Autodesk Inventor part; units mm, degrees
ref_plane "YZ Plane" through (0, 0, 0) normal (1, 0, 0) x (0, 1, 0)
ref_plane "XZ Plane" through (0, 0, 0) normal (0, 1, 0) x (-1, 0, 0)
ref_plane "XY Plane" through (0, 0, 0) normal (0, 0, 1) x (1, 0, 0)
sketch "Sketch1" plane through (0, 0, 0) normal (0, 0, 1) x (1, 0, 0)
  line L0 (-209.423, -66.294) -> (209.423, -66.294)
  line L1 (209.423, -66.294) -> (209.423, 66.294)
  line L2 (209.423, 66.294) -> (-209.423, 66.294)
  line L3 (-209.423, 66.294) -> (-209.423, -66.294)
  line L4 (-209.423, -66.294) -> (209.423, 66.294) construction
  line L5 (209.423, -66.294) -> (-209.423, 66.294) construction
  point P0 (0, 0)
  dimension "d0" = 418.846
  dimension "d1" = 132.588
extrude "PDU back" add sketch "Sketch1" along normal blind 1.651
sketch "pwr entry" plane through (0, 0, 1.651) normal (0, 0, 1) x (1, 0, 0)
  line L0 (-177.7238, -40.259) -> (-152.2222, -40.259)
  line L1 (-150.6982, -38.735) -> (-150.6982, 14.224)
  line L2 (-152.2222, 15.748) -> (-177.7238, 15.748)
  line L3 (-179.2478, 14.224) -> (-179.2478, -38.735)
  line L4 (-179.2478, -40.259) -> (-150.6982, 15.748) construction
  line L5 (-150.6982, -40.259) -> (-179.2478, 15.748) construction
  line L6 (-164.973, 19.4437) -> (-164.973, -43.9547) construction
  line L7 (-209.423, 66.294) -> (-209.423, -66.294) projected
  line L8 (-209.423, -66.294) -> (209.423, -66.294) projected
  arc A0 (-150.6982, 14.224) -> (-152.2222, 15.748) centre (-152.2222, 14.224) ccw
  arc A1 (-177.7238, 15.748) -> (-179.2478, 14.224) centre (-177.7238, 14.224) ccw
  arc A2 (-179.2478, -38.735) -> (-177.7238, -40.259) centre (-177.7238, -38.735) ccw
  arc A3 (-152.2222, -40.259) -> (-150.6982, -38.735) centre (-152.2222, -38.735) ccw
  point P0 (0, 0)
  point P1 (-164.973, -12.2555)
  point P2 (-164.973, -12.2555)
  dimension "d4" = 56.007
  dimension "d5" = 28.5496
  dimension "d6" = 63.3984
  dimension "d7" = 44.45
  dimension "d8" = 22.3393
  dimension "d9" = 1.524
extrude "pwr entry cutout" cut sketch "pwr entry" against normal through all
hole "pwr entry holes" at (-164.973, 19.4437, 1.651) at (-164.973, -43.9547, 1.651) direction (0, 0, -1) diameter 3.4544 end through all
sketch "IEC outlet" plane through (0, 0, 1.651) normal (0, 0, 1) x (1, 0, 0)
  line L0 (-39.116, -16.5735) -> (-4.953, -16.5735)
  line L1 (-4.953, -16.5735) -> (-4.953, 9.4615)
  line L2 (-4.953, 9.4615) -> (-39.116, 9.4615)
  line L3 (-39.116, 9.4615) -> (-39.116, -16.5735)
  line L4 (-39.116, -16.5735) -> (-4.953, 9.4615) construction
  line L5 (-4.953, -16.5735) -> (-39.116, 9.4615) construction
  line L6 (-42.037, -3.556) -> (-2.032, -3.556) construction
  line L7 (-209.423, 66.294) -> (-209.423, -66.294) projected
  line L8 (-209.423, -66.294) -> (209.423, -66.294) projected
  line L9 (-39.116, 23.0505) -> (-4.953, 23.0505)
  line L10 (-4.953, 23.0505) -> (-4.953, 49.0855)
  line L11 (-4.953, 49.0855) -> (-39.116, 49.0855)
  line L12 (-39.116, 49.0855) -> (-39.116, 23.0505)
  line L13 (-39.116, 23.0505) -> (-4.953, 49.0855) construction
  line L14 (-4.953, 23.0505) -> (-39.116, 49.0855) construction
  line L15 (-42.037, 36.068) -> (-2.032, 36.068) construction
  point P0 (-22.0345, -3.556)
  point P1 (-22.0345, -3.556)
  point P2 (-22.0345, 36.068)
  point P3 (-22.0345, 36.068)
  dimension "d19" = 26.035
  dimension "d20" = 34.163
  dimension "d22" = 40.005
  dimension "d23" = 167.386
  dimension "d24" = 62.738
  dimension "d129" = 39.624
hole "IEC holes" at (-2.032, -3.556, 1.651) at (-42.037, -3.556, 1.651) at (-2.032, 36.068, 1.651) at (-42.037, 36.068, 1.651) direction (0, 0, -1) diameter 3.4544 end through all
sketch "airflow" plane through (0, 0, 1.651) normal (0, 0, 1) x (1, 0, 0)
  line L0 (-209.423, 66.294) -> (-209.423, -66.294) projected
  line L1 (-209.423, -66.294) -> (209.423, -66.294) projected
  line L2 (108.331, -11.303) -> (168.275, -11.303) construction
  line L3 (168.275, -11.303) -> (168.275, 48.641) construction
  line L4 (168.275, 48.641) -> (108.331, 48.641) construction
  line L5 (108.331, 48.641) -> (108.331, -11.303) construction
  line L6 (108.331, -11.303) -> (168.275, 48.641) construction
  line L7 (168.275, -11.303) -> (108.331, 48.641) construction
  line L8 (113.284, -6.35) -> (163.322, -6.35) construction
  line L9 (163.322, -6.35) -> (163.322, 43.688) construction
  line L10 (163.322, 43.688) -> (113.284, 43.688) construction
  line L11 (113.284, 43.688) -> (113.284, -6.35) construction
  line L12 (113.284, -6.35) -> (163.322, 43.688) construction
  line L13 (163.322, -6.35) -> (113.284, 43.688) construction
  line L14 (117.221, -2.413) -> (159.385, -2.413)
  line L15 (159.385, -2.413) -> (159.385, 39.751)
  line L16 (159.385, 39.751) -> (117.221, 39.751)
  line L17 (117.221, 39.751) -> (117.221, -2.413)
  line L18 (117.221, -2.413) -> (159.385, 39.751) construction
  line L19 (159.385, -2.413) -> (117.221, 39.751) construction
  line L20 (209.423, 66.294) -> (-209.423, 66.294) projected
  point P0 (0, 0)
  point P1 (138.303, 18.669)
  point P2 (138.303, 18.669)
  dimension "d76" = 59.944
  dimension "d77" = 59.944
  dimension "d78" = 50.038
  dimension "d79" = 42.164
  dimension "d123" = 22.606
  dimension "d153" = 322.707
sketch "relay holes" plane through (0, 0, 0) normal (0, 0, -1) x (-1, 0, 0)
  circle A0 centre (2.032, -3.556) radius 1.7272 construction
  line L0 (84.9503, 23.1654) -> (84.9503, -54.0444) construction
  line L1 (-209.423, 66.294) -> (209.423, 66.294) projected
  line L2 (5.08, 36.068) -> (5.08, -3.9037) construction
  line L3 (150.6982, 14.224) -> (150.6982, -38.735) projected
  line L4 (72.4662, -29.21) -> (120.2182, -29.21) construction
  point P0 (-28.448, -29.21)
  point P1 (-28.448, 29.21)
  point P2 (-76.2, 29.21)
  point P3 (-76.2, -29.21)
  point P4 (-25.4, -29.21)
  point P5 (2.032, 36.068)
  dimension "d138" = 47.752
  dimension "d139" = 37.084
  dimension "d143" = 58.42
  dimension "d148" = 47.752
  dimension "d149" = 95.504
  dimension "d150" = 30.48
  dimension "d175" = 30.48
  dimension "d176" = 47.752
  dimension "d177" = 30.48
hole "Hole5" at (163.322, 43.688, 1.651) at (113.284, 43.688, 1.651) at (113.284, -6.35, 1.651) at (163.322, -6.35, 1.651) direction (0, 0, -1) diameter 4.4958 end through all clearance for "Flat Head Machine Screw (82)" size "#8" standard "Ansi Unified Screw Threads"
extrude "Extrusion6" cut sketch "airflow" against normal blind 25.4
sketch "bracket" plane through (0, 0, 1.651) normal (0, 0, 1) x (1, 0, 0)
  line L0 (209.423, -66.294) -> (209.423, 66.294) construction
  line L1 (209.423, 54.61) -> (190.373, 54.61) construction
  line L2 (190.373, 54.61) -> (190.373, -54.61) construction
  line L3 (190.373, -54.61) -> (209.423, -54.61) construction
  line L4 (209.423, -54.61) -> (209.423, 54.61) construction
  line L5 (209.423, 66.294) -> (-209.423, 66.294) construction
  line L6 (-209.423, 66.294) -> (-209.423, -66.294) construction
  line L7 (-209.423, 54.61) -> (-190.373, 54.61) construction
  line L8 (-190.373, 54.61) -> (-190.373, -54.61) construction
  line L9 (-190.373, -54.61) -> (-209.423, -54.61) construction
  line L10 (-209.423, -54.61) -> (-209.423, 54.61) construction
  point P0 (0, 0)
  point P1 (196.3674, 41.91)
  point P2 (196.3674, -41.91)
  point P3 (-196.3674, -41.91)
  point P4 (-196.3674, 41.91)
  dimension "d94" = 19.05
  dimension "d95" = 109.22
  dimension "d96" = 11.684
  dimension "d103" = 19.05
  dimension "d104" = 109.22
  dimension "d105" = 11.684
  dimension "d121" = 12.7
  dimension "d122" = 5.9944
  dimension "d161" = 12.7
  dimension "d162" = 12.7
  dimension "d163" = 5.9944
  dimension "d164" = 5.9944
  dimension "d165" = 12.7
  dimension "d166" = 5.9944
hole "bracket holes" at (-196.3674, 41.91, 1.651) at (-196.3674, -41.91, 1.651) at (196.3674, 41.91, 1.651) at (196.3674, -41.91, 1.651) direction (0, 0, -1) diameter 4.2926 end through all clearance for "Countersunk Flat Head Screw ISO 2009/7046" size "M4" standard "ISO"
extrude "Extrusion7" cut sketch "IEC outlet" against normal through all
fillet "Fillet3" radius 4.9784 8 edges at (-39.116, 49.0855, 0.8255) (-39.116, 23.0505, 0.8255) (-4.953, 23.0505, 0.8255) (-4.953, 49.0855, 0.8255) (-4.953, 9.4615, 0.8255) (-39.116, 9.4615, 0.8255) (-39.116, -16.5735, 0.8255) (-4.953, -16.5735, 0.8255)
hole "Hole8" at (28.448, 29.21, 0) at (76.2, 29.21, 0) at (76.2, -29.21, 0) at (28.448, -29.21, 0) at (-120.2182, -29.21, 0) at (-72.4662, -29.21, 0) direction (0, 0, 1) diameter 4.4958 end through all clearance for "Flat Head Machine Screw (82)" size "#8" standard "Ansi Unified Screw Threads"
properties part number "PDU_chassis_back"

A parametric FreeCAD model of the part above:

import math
import FreeCAD as App
import Part
import Sketcher
from FreeCAD import Vector
Q = App.Units.Quantity


def edges_at(feature, points):
    """Names of the edges that pass closest to the given points."""
    edges = feature.Shape.Edges
    near = lambda p: min(range(len(edges)), key=lambda i: edges[i].distToShape(Part.Vertex(*p))[0])
    return sorted({f"Edge{near(p) + 1}" for p in points})

doc = App.newDocument("Part")
body = doc.addObject("PartDesign::Body", "Body")

sketch1 = doc.addObject("Sketcher::SketchObject", "Sketch")
body.addObject(sketch1)
sketch1.AttachmentSupport = (doc.XY_Plane, [""])
sketch1.MapMode = "FlatFace"
sketch1.addGeometry(Part.LineSegment(Vector(-209, 66, 0), Vector(-209, -66, 0)), False)
sketch1.addGeometry(Part.LineSegment(Vector(-209, -66, 0), Vector(209, -66, 0)), False)
sketch1.addGeometry(Part.LineSegment(Vector(209, -66, 0), Vector(209, 66, 0)), False)
sketch1.addGeometry(Part.LineSegment(Vector(209, 66, 0), Vector(-209, 66, 0)), False)
sketch1.addConstraint(Sketcher.Constraint("Coincident", 0, 2, 1, 1))
sketch1.addConstraint(Sketcher.Constraint("Coincident", 1, 2, 2, 1))
sketch1.addConstraint(Sketcher.Constraint("Coincident", 2, 2, 3, 1))
sketch1.addConstraint(Sketcher.Constraint("Coincident", 3, 2, 0, 1))
sketch1.addConstraint(Sketcher.Constraint("Vertical", 0))
sketch1.addConstraint(Sketcher.Constraint("Horizontal", 1))
sketch1.addConstraint(Sketcher.Constraint("Vertical", 2))
sketch1.addConstraint(Sketcher.Constraint("Horizontal", 3))
sketch1.addConstraint(Sketcher.Constraint("Symmetric", 0, 2, 2, 2, -1, 1))
sketch1.addConstraint(Sketcher.Constraint("DistanceX", 1, 1, 1, 2, Q("16.49 in")))
sketch1.addConstraint(Sketcher.Constraint("DistanceY", 0, 2, 0, 1, Q("5.22 in")))
pad1 = doc.addObject("PartDesign::Pad", "Pad")
body.addObject(pad1)
pad1.Profile = sketch1
pad1.Length = Q("0.065 in")

sketch2 = doc.addObject("Sketcher::SketchObject", "Sketch001")
body.addObject(sketch2)
sketch2.AttachmentSupport = (doc.XY_Plane, [""])
sketch2.MapMode = "FlatFace"
sketch2.AttachmentOffset = App.Placement(Vector(0, 0, 0.065 * 25.4), App.Rotation())
sketch2.addGeometry(Part.ArcOfCircle(Part.Circle(Vector(-177.7, -38.7, 0), Vector(0, 0, 1), 1.5), math.radians(180), math.radians(270)), False)
sketch2.addGeometry(Part.LineSegment(Vector(-177.7, -40.3, 0), Vector(-152.2, -40.3, 0)), False)
sketch2.addGeometry(Part.ArcOfCircle(Part.Circle(Vector(-152.2, -38.7, 0), Vector(0, 0, 1), 1.5), math.radians(-90), math.radians(0)), False)
sketch2.addGeometry(Part.LineSegment(Vector(-150.7, -38.7, 0), Vector(-150.7, 14.2, 0)), False)
sketch2.addGeometry(Part.ArcOfCircle(Part.Circle(Vector(-152.2, 14.2, 0), Vector(0, 0, 1), 1.5), math.radians(0), math.radians(90)), False)
sketch2.addGeometry(Part.LineSegment(Vector(-152.2, 15.7, 0), Vector(-177.7, 15.7, 0)), False)
sketch2.addGeometry(Part.ArcOfCircle(Part.Circle(Vector(-177.7, 14.2, 0), Vector(0, 0, 1), 1.5), math.radians(90), math.radians(180)), False)
sketch2.addGeometry(Part.LineSegment(Vector(-179.2, 14.2, 0), Vector(-179.2, -38.7, 0)), False)
sketch2.addConstraint(Sketcher.Constraint("Tangent", 0, 2, 1, 1))
sketch2.addConstraint(Sketcher.Constraint("Tangent", 1, 2, 2, 1))
sketch2.addConstraint(Sketcher.Constraint("Tangent", 2, 2, 3, 1))
sketch2.addConstraint(Sketcher.Constraint("Tangent", 3, 2, 4, 1))
sketch2.addConstraint(Sketcher.Constraint("Tangent", 4, 2, 5, 1))
sketch2.addConstraint(Sketcher.Constraint("Tangent", 5, 2, 6, 1))
sketch2.addConstraint(Sketcher.Constraint("Tangent", 6, 2, 7, 1))
sketch2.addConstraint(Sketcher.Constraint("Tangent", 7, 2, 0, 1))
sketch2.addConstraint(Sketcher.Constraint("Horizontal", 1))
sketch2.addConstraint(Sketcher.Constraint("Vertical", 3))
sketch2.addConstraint(Sketcher.Constraint("Horizontal", 5))
sketch2.addConstraint(Sketcher.Constraint("Vertical", 7))
sketch2.addConstraint(Sketcher.Constraint("Equal", 0, 2))
sketch2.addConstraint(Sketcher.Constraint("Equal", 2, 4))
sketch2.addConstraint(Sketcher.Constraint("Equal", 4, 6))
sketch2.addConstraint(Sketcher.Constraint("Radius", 0, Q("0.06 in")))
sketch2.addConstraint(Sketcher.Constraint("DistanceX", 6, 2, 3, 2, Q("1.124 in")))
sketch2.addConstraint(Sketcher.Constraint("DistanceY", 3, 1, 3, 2, Q("2.085 in")))
sketch2.addConstraint(Sketcher.Constraint("DistanceY", -1, 1, 4, 3, Q("0.56 in")))
sketch2.addConstraint(Sketcher.Constraint("DistanceX", 0, 3, -1, 1, Q("6.997 in")))
pocket1 = doc.addObject("PartDesign::Pocket", "Pocket")
body.addObject(pocket1)
pocket1.Profile = sketch2
pocket1.Type = "ThroughAll"

sketch3 = doc.addObject("Sketcher::SketchObject", "Sketch002")
body.addObject(sketch3)
sketch3.AttachmentSupport = (doc.XY_Plane, [""])
sketch3.MapMode = "FlatFace"
sketch3.AttachmentOffset = App.Placement(Vector(0, 0, 0.065 * 25.4), App.Rotation())
sketch3.addGeometry(Part.Circle(Vector(-165, 19.4, 0), Vector(0, 0, 1), 1.7), False)
sketch3.addGeometry(Part.Circle(Vector(-165, -44, 0), Vector(0, 0, 1), 1.7), False)
sketch3.addConstraint(Sketcher.Constraint("Equal", 0, 1))
sketch3.addConstraint(Sketcher.Constraint("Vertical", 0, 3, 1, 3))
sketch3.addConstraint(Sketcher.Constraint("Diameter", 0, Q("0.136 in")))
sketch3.addConstraint(Sketcher.Constraint("DistanceX", 0, 3, -1, 1, Q("6.495 in")))
sketch3.addConstraint(Sketcher.Constraint("DistanceY", 1, 3, 0, 3, Q("2.496 in")))
sketch3.addConstraint(Sketcher.Constraint("DistanceY", -1, 1, 0, 3, Q("0.7655 in")))
doc.recompute()
hole = doc.addObject("PartDesign::Hole", "Hole")
body.addObject(hole)
hole.Profile = sketch3
hole.ThreadType = "None"
hole.Diameter = Q("0.136 in")
hole.DepthType = "ThroughAll"

sketch4 = doc.addObject("Sketcher::SketchObject", "Sketch003")
body.addObject(sketch4)
sketch4.AttachmentSupport = (doc.XY_Plane, [""])
sketch4.MapMode = "FlatFace"
sketch4.AttachmentOffset = App.Placement(Vector(0, 0, 0.065 * 25.4), App.Rotation())
sketch4.addGeometry(Part.Circle(Vector(-2, -3.6, 0), Vector(0, 0, 1), 1.7), False)
sketch4.addGeometry(Part.Circle(Vector(-42, -3.6, 0), Vector(0, 0, 1), 1.7), False)
sketch4.addGeometry(Part.Circle(Vector(-2, 36.1, 0), Vector(0, 0, 1), 1.7), False)
sketch4.addGeometry(Part.Circle(Vector(-42, 36.1, 0), Vector(0, 0, 1), 1.7), False)
sketch4.addConstraint(Sketcher.Constraint("Equal", 0, 1))
sketch4.addConstraint(Sketcher.Constraint("Equal", 1, 2))
sketch4.addConstraint(Sketcher.Constraint("Equal", 2, 3))
sketch4.addConstraint(Sketcher.Constraint("Horizontal", 0, 3, 1, 3))
sketch4.addConstraint(Sketcher.Constraint("Horizontal", 2, 3, 3, 3))
sketch4.addConstraint(Sketcher.Constraint("Vertical", 0, 3, 2, 3))
sketch4.addConstraint(Sketcher.Constraint("Vertical", 1, 3, 3, 3))
sketch4.addConstraint(Sketcher.Constraint("Diameter", 0, Q("0.136 in")))
sketch4.addConstraint(Sketcher.Constraint("DistanceX", 0, 3, -1, 1, Q("0.08 in")))
sketch4.addConstraint(Sketcher.Constraint("DistanceY", 0, 3, -1, 1, Q("0.14 in")))
sketch4.addConstraint(Sketcher.Constraint("DistanceY", -1, 1, 2, 3, Q("1.42 in")))
sketch4.addConstraint(Sketcher.Constraint("DistanceX", 1, 3, -1, 1, Q("1.655 in")))
doc.recompute()
hole2 = doc.addObject("PartDesign::Hole", "Hole001")
body.addObject(hole2)
hole2.Profile = sketch4
hole2.ThreadType = "None"
hole2.Diameter = Q("0.136 in")
hole2.DepthType = "ThroughAll"

sketch5 = doc.addObject("Sketcher::SketchObject", "Sketch004")
body.addObject(sketch5)
sketch5.AttachmentSupport = (doc.XY_Plane, [""])
sketch5.MapMode = "FlatFace"
sketch5.AttachmentOffset = App.Placement(Vector(0, 0, 0.065 * 25.4), App.Rotation())
sketch5.addGeometry(Part.Circle(Vector(163.3, 43.7, 0), Vector(0, 0, 1), 2.2), False)
sketch5.addGeometry(Part.Circle(Vector(113.3, 43.7, 0), Vector(0, 0, 1), 2.2), False)
sketch5.addGeometry(Part.Circle(Vector(113.3, -6.3, 0), Vector(0, 0, 1), 2.2), False)
sketch5.addGeometry(Part.Circle(Vector(163.3, -6.3, 0), Vector(0, 0, 1), 2.2), False)
sketch5.addConstraint(Sketcher.Constraint("Equal", 0, 1))
sketch5.addConstraint(Sketcher.Constraint("Equal", 1, 2))
sketch5.addConstraint(Sketcher.Constraint("Equal", 2, 3))
sketch5.addConstraint(Sketcher.Constraint("Horizontal", 0, 3, 1, 3))
sketch5.addConstraint(Sketcher.Constraint("Horizontal", 2, 3, 3, 3))
sketch5.addConstraint(Sketcher.Constraint("Vertical", 1, 3, 2, 3))
sketch5.addConstraint(Sketcher.Constraint("Vertical", 0, 3, 3, 3))
sketch5.addConstraint(Sketcher.Constraint("Diameter", 0, Q("0.177 in")))
sketch5.addConstraint(Sketcher.Constraint("DistanceX", -1, 1, 0, 3, Q("6.43 in")))
sketch5.addConstraint(Sketcher.Constraint("DistanceY", -1, 1, 0, 3, Q("1.72 in")))
sketch5.addConstraint(Sketcher.Constraint("DistanceX", -1, 1, 1, 3, Q("4.46 in")))
sketch5.addConstraint(Sketcher.Constraint("DistanceY", 2, 3, -1, 1, Q("0.25 in")))
doc.recompute()
hole3 = doc.addObject("PartDesign::Hole", "Hole002")
body.addObject(hole3)
hole3.Profile = sketch5
hole3.ThreadType = "None"
hole3.Diameter = Q("0.177 in")
hole3.DepthType = "ThroughAll"

sketch6 = doc.addObject("Sketcher::SketchObject", "Sketch005")
body.addObject(sketch6)
sketch6.AttachmentSupport = (doc.XY_Plane, [""])
sketch6.MapMode = "FlatFace"
sketch6.AttachmentOffset = App.Placement(Vector(0, 0, 0.065 * 25.4), App.Rotation())
sketch6.addGeometry(Part.LineSegment(Vector(117, 40, 0), Vector(117, -2, 0)), False)
sketch6.addGeometry(Part.LineSegment(Vector(117, -2, 0), Vector(159, -2, 0)), False)
sketch6.addGeometry(Part.LineSegment(Vector(159, -2, 0), Vector(159, 40, 0)), False)
sketch6.addGeometry(Part.LineSegment(Vector(159, 40, 0), Vector(117, 40, 0)), False)
sketch6.addConstraint(Sketcher.Constraint("Coincident", 0, 2, 1, 1))
sketch6.addConstraint(Sketcher.Constraint("Coincident", 1, 2, 2, 1))
sketch6.addConstraint(Sketcher.Constraint("Coincident", 2, 2, 3, 1))
sketch6.addConstraint(Sketcher.Constraint("Coincident", 3, 2, 0, 1))
sketch6.addConstraint(Sketcher.Constraint("Vertical", 0))
sketch6.addConstraint(Sketcher.Constraint("Horizontal", 1))
sketch6.addConstraint(Sketcher.Constraint("Vertical", 2))
sketch6.addConstraint(Sketcher.Constraint("Horizontal", 3))
sketch6.addConstraint(Sketcher.Constraint("Equal", 3, 0))
sketch6.addConstraint(Sketcher.Constraint("DistanceX", 1, 1, 1, 2, Q("1.66 in")))
sketch6.addConstraint(Sketcher.Constraint("DistanceX", -1, 1, 0, 2, Q("4.615 in")))
sketch6.addConstraint(Sketcher.Constraint("DistanceY", 0, 2, -1, 1, Q("0.095 in")))
pocket2 = doc.addObject("PartDesign::Pocket", "Pocket001")
body.addObject(pocket2)
pocket2.Profile = sketch6
pocket2.Length = Q("1 in")

sketch7 = doc.addObject("Sketcher::SketchObject", "Sketch006")
body.addObject(sketch7)
sketch7.AttachmentSupport = (doc.XY_Plane, [""])
sketch7.MapMode = "FlatFace"
sketch7.AttachmentOffset = App.Placement(Vector(0, 0, 0.065 * 25.4), App.Rotation())
sketch7.addGeometry(Part.Circle(Vector(-196.4, 41.9, 0), Vector(0, 0, 1), 2.1), False)
sketch7.addGeometry(Part.Circle(Vector(-196.4, -41.9, 0), Vector(0, 0, 1), 2.1), False)
sketch7.addGeometry(Part.Circle(Vector(196.4, 41.9, 0), Vector(0, 0, 1), 2.1), False)
sketch7.addGeometry(Part.Circle(Vector(196.4, -41.9, 0), Vector(0, 0, 1), 2.1), False)
sketch7.addConstraint(Sketcher.Constraint("Equal", 0, 1))
sketch7.addConstraint(Sketcher.Constraint("Equal", 1, 2))
sketch7.addConstraint(Sketcher.Constraint("Equal", 2, 3))
sketch7.addConstraint(Sketcher.Constraint("Symmetric", 1, 3, 2, 3, -1, 1))
sketch7.addConstraint(Sketcher.Constraint("Symmetric", 0, 3, 3, 3, -1, 1))
sketch7.addConstraint(Sketcher.Constraint("Symmetric", 0, 3, 2, 3, -2))
sketch7.addConstraint(Sketcher.Constraint("Diameter", 0, Q("0.169 in")))
sketch7.addConstraint(Sketcher.Constraint("DistanceY", 1, 3, 0, 3, Q("3.3 in")))
sketch7.addConstraint(Sketcher.Constraint("DistanceX", 0, 3, -1, 1, Q("7.731 in")))
doc.recompute()
hole4 = doc.addObject("PartDesign::Hole", "Hole003")
body.addObject(hole4)
hole4.Profile = sketch7
hole4.ThreadType = "None"
hole4.Diameter = Q("0.169 in")
hole4.DepthType = "ThroughAll"

sketch8 = doc.addObject("Sketcher::SketchObject", "Sketch007")
body.addObject(sketch8)
sketch8.AttachmentSupport = (doc.XY_Plane, [""])
sketch8.MapMode = "FlatFace"
sketch8.AttachmentOffset = App.Placement(Vector(0, 0, 0.065 * 25.4), App.Rotation())
sketch8.addGeometry(Part.LineSegment(Vector(-39, 9, 0), Vector(-39, -17, 0)), False)
sketch8.addGeometry(Part.LineSegment(Vector(-39, -17, 0), Vector(-5, -17, 0)), False)
sketch8.addGeometry(Part.LineSegment(Vector(-5, -17, 0), Vector(-5, 9, 0)), False)
sketch8.addGeometry(Part.LineSegment(Vector(-5, 9, 0), Vector(-39, 9, 0)), False)
sketch8.addGeometry(Part.LineSegment(Vector(-39, 49, 0), Vector(-39, 23, 0)), False)
sketch8.addGeometry(Part.LineSegment(Vector(-39, 23, 0), Vector(-5, 23, 0)), False)
sketch8.addGeometry(Part.LineSegment(Vector(-5, 23, 0), Vector(-5, 49, 0)), False)
sketch8.addGeometry(Part.LineSegment(Vector(-5, 49, 0), Vector(-39, 49, 0)), False)
sketch8.addConstraint(Sketcher.Constraint("Coincident", 0, 2, 1, 1))
sketch8.addConstraint(Sketcher.Constraint("Coincident", 1, 2, 2, 1))
sketch8.addConstraint(Sketcher.Constraint("Coincident", 2, 2, 3, 1))
sketch8.addConstraint(Sketcher.Constraint("Coincident", 3, 2, 0, 1))
sketch8.addConstraint(Sketcher.Constraint("Coincident", 4, 2, 5, 1))
sketch8.addConstraint(Sketcher.Constraint("Coincident", 5, 2, 6, 1))
sketch8.addConstraint(Sketcher.Constraint("Coincident", 6, 2, 7, 1))
sketch8.addConstraint(Sketcher.Constraint("Coincident", 7, 2, 4, 1))
sketch8.addConstraint(Sketcher.Constraint("Vertical", 0))
sketch8.addConstraint(Sketcher.Constraint("Horizontal", 1))
sketch8.addConstraint(Sketcher.Constraint("Vertical", 2))
sketch8.addConstraint(Sketcher.Constraint("Horizontal", 3))
sketch8.addConstraint(Sketcher.Constraint("Vertical", 4))
sketch8.addConstraint(Sketcher.Constraint("Horizontal", 5))
sketch8.addConstraint(Sketcher.Constraint("Vertical", 6))
sketch8.addConstraint(Sketcher.Constraint("Horizontal", 7))
sketch8.addConstraint(Sketcher.Constraint("Vertical", 3, 2, 4, 2))
sketch8.addConstraint(Sketcher.Constraint("Vertical", 2, 2, 5, 2))
sketch8.addConstraint(Sketcher.Constraint("Equal", 2, 4))
sketch8.addConstraint(Sketcher.Constraint("DistanceX", 1, 1, 1, 2, Q("1.345 in")))
sketch8.addConstraint(Sketcher.Constraint("DistanceY", 0, 2, 0, 1, Q("1.025 in")))
sketch8.addConstraint(Sketcher.Constraint("DistanceY", 0, 2, 4, 2, Q("1.56 in")))
sketch8.addConstraint(Sketcher.Constraint("DistanceX", 0, 2, -1, 1, Q("1.54 in")))
sketch8.addConstraint(Sketcher.Constraint("DistanceY", 0, 2, -1, 1, Q("0.6525 in")))
pocket3 = doc.addObject("PartDesign::Pocket", "Pocket002")
body.addObject(pocket3)
pocket3.Profile = sketch8
pocket3.Type = "ThroughAll"
doc.recompute()

fillet = doc.addObject("PartDesign::Fillet", "Fillet")
body.addObject(fillet)
fillet.Base = (pocket3, edges_at(pocket3, [
    (-39.116, 49.086, 0.826),
    (-39.116, 23.05, 0.826),
    (-4.953, 23.05, 0.826),
    (-4.953, 49.086, 0.826),
    (-4.953, 9.461, 0.826),
    (-39.116, 9.461, 0.826),
    (-39.116, -16.573, 0.826),
    (-4.953, -16.573, 0.826),
]))
fillet.Radius = Q("0.196 in")

sketch9 = doc.addObject("Sketcher::SketchObject", "Sketch008")
body.addObject(sketch9)
sketch9.AttachmentSupport = (doc.XY_Plane, [""])
sketch9.MapMode = "FlatFace"
sketch9.addGeometry(Part.Circle(Vector(28.4, 29.2, 0), Vector(0, 0, 1), 2.2), False)
sketch9.addGeometry(Part.Circle(Vector(76.2, 29.2, 0), Vector(0, 0, 1), 2.2), False)
sketch9.addGeometry(Part.Circle(Vector(76.2, -29.2, 0), Vector(0, 0, 1), 2.2), False)
sketch9.addGeometry(Part.Circle(Vector(28.4, -29.2, 0), Vector(0, 0, 1), 2.2), False)
sketch9.addGeometry(Part.Circle(Vector(-120.2, -29.2, 0), Vector(0, 0, 1), 2.2), False)
sketch9.addGeometry(Part.Circle(Vector(-72.5, -29.2, 0), Vector(0, 0, 1), 2.2), False)
sketch9.addConstraint(Sketcher.Constraint("Equal", 0, 1))
sketch9.addConstraint(Sketcher.Constraint("Equal", 1, 2))
sketch9.addConstraint(Sketcher.Constraint("Equal", 2, 3))
sketch9.addConstraint(Sketcher.Constraint("Equal", 3, 4))
sketch9.addConstraint(Sketcher.Constraint("Equal", 4, 5))
sketch9.addConstraint(Sketcher.Constraint("Symmetric", 1, 3, 2, 3, -1))
sketch9.addConstraint(Sketcher.Constraint("Symmetric", 0, 3, 3, 3, -1))
sketch9.addConstraint(Sketcher.Constraint("Horizontal", 0, 3, 1, 3))
sketch9.addConstraint(Sketcher.Constraint("Horizontal", 3, 3, 4, 3))
sketch9.addConstraint(Sketcher.Constraint("Horizontal", 4, 3, 5, 3))
sketch9.addConstraint(Sketcher.Constraint("Diameter", 0, Q("0.177 in")))
sketch9.addConstraint(Sketcher.Constraint("DistanceX", -1, 1, 1, 3, Q("3 in")))
sketch9.addConstraint(Sketcher.Constraint("DistanceY", 2, 3, 1, 3, Q("2.3 in")))
sketch9.addConstraint(Sketcher.Constraint("DistanceX", -1, 1, 0, 3, Q("1.12 in")))
sketch9.addConstraint(Sketcher.Constraint("DistanceX", 4, 3, 5, 3, Q("1.88 in")))
sketch9.addConstraint(Sketcher.Constraint("DistanceX", 4, 3, -1, 1, Q("4.733 in")))
doc.recompute()
hole5 = doc.addObject("PartDesign::Hole", "Hole004")
body.addObject(hole5)
hole5.Profile = sketch9
hole5.ThreadType = "None"
hole5.Diameter = Q("0.177 in")
hole5.DepthType = "ThroughAll"
hole5.Reversed = True

doc.recompute()
